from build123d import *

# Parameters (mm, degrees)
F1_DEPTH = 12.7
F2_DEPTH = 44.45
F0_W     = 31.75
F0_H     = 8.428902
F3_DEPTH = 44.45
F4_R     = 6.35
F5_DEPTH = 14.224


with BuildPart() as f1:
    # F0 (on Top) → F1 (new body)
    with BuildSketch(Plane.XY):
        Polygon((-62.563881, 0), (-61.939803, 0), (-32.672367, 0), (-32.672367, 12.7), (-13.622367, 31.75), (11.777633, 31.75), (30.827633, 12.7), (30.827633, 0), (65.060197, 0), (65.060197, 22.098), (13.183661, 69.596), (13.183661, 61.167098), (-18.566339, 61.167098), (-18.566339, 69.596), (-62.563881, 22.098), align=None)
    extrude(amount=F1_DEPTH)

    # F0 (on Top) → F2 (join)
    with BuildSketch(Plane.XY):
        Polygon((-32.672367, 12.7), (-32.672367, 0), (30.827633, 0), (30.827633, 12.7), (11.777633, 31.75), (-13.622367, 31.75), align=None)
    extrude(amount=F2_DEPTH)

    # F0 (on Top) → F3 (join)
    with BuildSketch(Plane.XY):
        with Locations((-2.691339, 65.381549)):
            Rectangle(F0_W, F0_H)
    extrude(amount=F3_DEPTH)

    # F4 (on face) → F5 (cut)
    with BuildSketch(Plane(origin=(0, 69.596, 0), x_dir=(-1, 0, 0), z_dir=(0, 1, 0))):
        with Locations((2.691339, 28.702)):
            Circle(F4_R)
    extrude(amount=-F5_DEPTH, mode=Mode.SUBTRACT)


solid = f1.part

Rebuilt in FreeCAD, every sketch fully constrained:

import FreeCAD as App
import Part
import Sketcher

V = App.Vector
Q = App.Units.Quantity

doc = App.newDocument("Part")
body = doc.addObject("PartDesign::Body", "Body")

sketch1 = doc.addObject("Sketcher::SketchObject", "Sketch")
body.addObject(sketch1)
sketch1.AttachmentSupport = (doc.XY_Plane, [""])
sketch1.MapMode = "FlatFace"
sketch1.addGeometry(Part.LineSegment(V(-63, 0, 0), V(-33, 0, 0)), False)
sketch1.addGeometry(Part.LineSegment(V(-33, 0, 0), V(-33, 13, 0)), False)
sketch1.addGeometry(Part.LineSegment(V(-33, 13, 0), V(-14, 32, 0)), False)
sketch1.addGeometry(Part.LineSegment(V(-14, 32, 0), V(12, 32, 0)), False)
sketch1.addGeometry(Part.LineSegment(V(12, 32, 0), V(31, 13, 0)), False)
sketch1.addGeometry(Part.LineSegment(V(31, 13, 0), V(31, 0, 0)), False)
sketch1.addGeometry(Part.LineSegment(V(31, 0, 0), V(65, 0, 0)), False)
sketch1.addGeometry(Part.LineSegment(V(65, 0, 0), V(65, 22, 0)), False)
sketch1.addGeometry(Part.LineSegment(V(65, 22, 0), V(13, 70, 0)), False)
sketch1.addGeometry(Part.LineSegment(V(13, 70, 0), V(13, 61, 0)), False)
sketch1.addGeometry(Part.LineSegment(V(13, 61, 0), V(-19, 61, 0)), False)
sketch1.addGeometry(Part.LineSegment(V(-19, 61, 0), V(-19, 70, 0)), False)
sketch1.addGeometry(Part.LineSegment(V(-19, 70, 0), V(-63, 22, 0)), False)
sketch1.addGeometry(Part.LineSegment(V(-63, 22, 0), V(-63, 0, 0)), False)
sketch1.addConstraint(Sketcher.Constraint("Coincident", 0, 2, 1, 1))
sketch1.addConstraint(Sketcher.Constraint("Coincident", 1, 2, 2, 1))
sketch1.addConstraint(Sketcher.Constraint("Coincident", 2, 2, 3, 1))
sketch1.addConstraint(Sketcher.Constraint("Coincident", 3, 2, 4, 1))
sketch1.addConstraint(Sketcher.Constraint("Coincident", 4, 2, 5, 1))
sketch1.addConstraint(Sketcher.Constraint("Coincident", 5, 2, 6, 1))
sketch1.addConstraint(Sketcher.Constraint("Coincident", 6, 2, 7, 1))
sketch1.addConstraint(Sketcher.Constraint("Coincident", 7, 2, 8, 1))
sketch1.addConstraint(Sketcher.Constraint("Coincident", 8, 2, 9, 1))
sketch1.addConstraint(Sketcher.Constraint("Coincident", 9, 2, 10, 1))
sketch1.addConstraint(Sketcher.Constraint("Coincident", 10, 2, 11, 1))
sketch1.addConstraint(Sketcher.Constraint("Coincident", 11, 2, 12, 1))
sketch1.addConstraint(Sketcher.Constraint("Coincident", 12, 2, 13, 1))
sketch1.addConstraint(Sketcher.Constraint("Coincident", 13, 2, 0, 1))
sketch1.addConstraint(Sketcher.Constraint("Horizontal", 0))
sketch1.addConstraint(Sketcher.Constraint("Vertical", 1))
sketch1.addConstraint(Sketcher.Constraint("Horizontal", 3))
sketch1.addConstraint(Sketcher.Constraint("Vertical", 5))
sketch1.addConstraint(Sketcher.Constraint("Horizontal", 6))
sketch1.addConstraint(Sketcher.Constraint("Vertical", 7))
sketch1.addConstraint(Sketcher.Constraint("Vertical", 9))
sketch1.addConstraint(Sketcher.Constraint("Horizontal", 10))
sketch1.addConstraint(Sketcher.Constraint("Vertical", 11))
sketch1.addConstraint(Sketcher.Constraint("Vertical", 13))
sketch1.addConstraint(Sketcher.Constraint("PointOnObject", 0, 2, -1))
sketch1.addConstraint(Sketcher.Constraint("PointOnObject", 5, 2, -1))
sketch1.addConstraint(Sketcher.Constraint("Perpendicular", 2, 4))
sketch1.addConstraint(Sketcher.Constraint("Horizontal", 1, 2, 4, 2))
sketch1.addConstraint(Sketcher.Constraint("Horizontal", 8, 2, 11, 2))
sketch1.addConstraint(Sketcher.Constraint("Horizontal", 7, 2, 12, 2))
sketch1.addConstraint(Sketcher.Constraint("Equal", 2, 4))
sketch1.addConstraint(Sketcher.Constraint("DistanceX", 3, 1, 3, 2, Q("1 in")))
sketch1.addConstraint(Sketcher.Constraint("DistanceY", 1, 1, 1, 2, Q("0.5 in")))
sketch1.addConstraint(Sketcher.Constraint("DistanceX", 10, 2, 10, 1, Q("1.25 in")))
sketch1.addConstraint(Sketcher.Constraint("DistanceY", 7, 1, 7, 2, Q("0.87 in")))
sketch1.addConstraint(Sketcher.Constraint("DistanceX", 1, 2, 4, 2, Q("2.5 in")))
sketch1.addConstraint(Sketcher.Constraint("DistanceY", -1, 1, 8, 2, Q("2.74 in")))
sketch1.addConstraint(Sketcher.Constraint("DistanceY", -1, 1, 9, 2, 61.167098))
sketch1.addConstraint(Sketcher.Constraint("Distance", 12, 64.744449))
sketch1.addConstraint(Sketcher.Constraint("DistanceX", 0, 1, 0, 2, 29.891514))
sketch1.addConstraint(Sketcher.Constraint("DistanceX", 6, 1, 6, 2, 34.232564))
sketch1.addConstraint(Sketcher.Constraint("DistanceX", -1, 1, 8, 2, 13.183661))
pad1 = doc.addObject("PartDesign::Pad", "Pad")
body.addObject(pad1)
pad1.Profile = sketch1
pad1.Length = Q("0.5 in")

sketch2 = doc.addObject("Sketcher::SketchObject", "Sketch001")
body.addObject(sketch2)
sketch2.AttachmentSupport = (doc.XY_Plane, [""])
sketch2.MapMode = "FlatFace"
sketch2.addGeometry(Part.LineSegment(V(-33, 13, 0), V(-33, 0, 0)), False)
sketch2.addGeometry(Part.LineSegment(V(-33, 0, 0), V(31, 0, 0)), False)
sketch2.addGeometry(Part.LineSegment(V(31, 0, 0), V(31, 13, 0)), False)
sketch2.addGeometry(Part.LineSegment(V(31, 13, 0), V(12, 32, 0)), False)
sketch2.addGeometry(Part.LineSegment(V(12, 32, 0), V(-14, 32, 0)), False)
sketch2.addGeometry(Part.LineSegment(V(-14, 32, 0), V(-33, 13, 0)), False)
sketch2.addConstraint(Sketcher.Constraint("Coincident", 0, 2, 1, 1))
sketch2.addConstraint(Sketcher.Constraint("Coincident", 1, 2, 2, 1))
sketch2.addConstraint(Sketcher.Constraint("Coincident", 2, 2, 3, 1))
sketch2.addConstraint(Sketcher.Constraint("Coincident", 3, 2, 4, 1))
sketch2.addConstraint(Sketcher.Constraint("Coincident", 4, 2, 5, 1))
sketch2.addConstraint(Sketcher.Constraint("Coincident", 5, 2, 0, 1))
sketch2.addConstraint(Sketcher.Constraint("Vertical", 0))
sketch2.addConstraint(Sketcher.Constraint("Horizontal", 1))
sketch2.addConstraint(Sketcher.Constraint("Vertical", 2))
sketch2.addConstraint(Sketcher.Constraint("Horizontal", 4))
sketch2.addConstraint(Sketcher.Constraint("PointOnObject", 0, 2, -1))
sketch2.addConstraint(Sketcher.Constraint("Perpendicular", 3, 5))
sketch2.addConstraint(Sketcher.Constraint("Horizontal", 2, 2, 5, 2))
sketch2.addConstraint(Sketcher.Constraint("Equal", 3, 5))
sketch2.addConstraint(Sketcher.Constraint("DistanceX", 4, 2, 4, 1, Q("1 in")))
sketch2.addConstraint(Sketcher.Constraint("DistanceX", 1, 1, 1, 2, Q("2.5 in")))
sketch2.addConstraint(Sketcher.Constraint("DistanceY", 0, 2, 0, 1, Q("0.5 in")))
sketch2.addConstraint(Sketcher.Constraint("DistanceX", 0, 2, -1, 1, 32.672367))
pad2 = doc.addObject("PartDesign::Pad", "Pad001")
body.addObject(pad2)
pad2.Profile = sketch2
pad2.Length = Q("1.75 in")

sketch3 = doc.addObject("Sketcher::SketchObject", "Sketch002")
body.addObject(sketch3)
sketch3.AttachmentSupport = (doc.XY_Plane, [""])
sketch3.MapMode = "FlatFace"
sketch3.addGeometry(Part.LineSegment(V(-19, 70, 0), V(-19, 61, 0)), False)
sketch3.addGeometry(Part.LineSegment(V(-19, 61, 0), V(13, 61, 0)), False)
sketch3.addGeometry(Part.LineSegment(V(13, 61, 0), V(13, 70, 0)), False)
sketch3.addGeometry(Part.LineSegment(V(13, 70, 0), V(-19, 70, 0)), False)
sketch3.addConstraint(Sketcher.Constraint("Coincident", 0, 2, 1, 1))
sketch3.addConstraint(Sketcher.Constraint("Coincident", 1, 2, 2, 1))
sketch3.addConstraint(Sketcher.Constraint("Coincident", 2, 2, 3, 1))
sketch3.addConstraint(Sketcher.Constraint("Coincident", 3, 2, 0, 1))
sketch3.addConstraint(Sketcher.Constraint("Vertical", 0))
sketch3.addConstraint(Sketcher.Constraint("Horizontal", 1))
sketch3.addConstraint(Sketcher.Constraint("Vertical", 2))
sketch3.addConstraint(Sketcher.Constraint("Horizontal", 3))
sketch3.addConstraint(Sketcher.Constraint("DistanceX", 1, 1, 1, 2, Q("1.25 in")))
sketch3.addConstraint(Sketcher.Constraint("DistanceY", -1, 1, 2, 2, Q("2.74 in")))
sketch3.addConstraint(Sketcher.Constraint("DistanceY", -1, 1, 0, 2, 61.167098))
sketch3.addConstraint(Sketcher.Constraint("DistanceX", 0, 2, -1, 1, 18.566339))
pad3 = doc.addObject("PartDesign::Pad", "Pad002")
body.addObject(pad3)
pad3.Profile = sketch3
pad3.Length = Q("1.75 in")

sketch4 = doc.addObject("Sketcher::SketchObject", "Sketch003")
body.addObject(sketch4)
sketch4.AttachmentSupport = (doc.XZ_Plane, [""])
sketch4.MapMode = "FlatFace"
sketch4.AttachmentOffset = App.Placement(V(0, 0, -2.74 * 25.4), App.Rotation())
sketch4.addGeometry(Part.Circle(V(-3, 29, 0), V(0, 0, 1), 6), False)
sketch4.addConstraint(Sketcher.Constraint("Diameter", 0, Q("0.5 in")))
sketch4.addConstraint(Sketcher.Constraint("DistanceY", -1, 1, 0, 3, Q("1.13 in")))
sketch4.addConstraint(Sketcher.Constraint("DistanceX", 0, 3, -1, 1, 2.691339))
pocket1 = doc.addObject("PartDesign::Pocket", "Pocket")
body.addObject(pocket1)
pocket1.Profile = sketch4
pocket1.Length = Q("0.56 in")
pocket1.Reversed = True

doc.recompute()
